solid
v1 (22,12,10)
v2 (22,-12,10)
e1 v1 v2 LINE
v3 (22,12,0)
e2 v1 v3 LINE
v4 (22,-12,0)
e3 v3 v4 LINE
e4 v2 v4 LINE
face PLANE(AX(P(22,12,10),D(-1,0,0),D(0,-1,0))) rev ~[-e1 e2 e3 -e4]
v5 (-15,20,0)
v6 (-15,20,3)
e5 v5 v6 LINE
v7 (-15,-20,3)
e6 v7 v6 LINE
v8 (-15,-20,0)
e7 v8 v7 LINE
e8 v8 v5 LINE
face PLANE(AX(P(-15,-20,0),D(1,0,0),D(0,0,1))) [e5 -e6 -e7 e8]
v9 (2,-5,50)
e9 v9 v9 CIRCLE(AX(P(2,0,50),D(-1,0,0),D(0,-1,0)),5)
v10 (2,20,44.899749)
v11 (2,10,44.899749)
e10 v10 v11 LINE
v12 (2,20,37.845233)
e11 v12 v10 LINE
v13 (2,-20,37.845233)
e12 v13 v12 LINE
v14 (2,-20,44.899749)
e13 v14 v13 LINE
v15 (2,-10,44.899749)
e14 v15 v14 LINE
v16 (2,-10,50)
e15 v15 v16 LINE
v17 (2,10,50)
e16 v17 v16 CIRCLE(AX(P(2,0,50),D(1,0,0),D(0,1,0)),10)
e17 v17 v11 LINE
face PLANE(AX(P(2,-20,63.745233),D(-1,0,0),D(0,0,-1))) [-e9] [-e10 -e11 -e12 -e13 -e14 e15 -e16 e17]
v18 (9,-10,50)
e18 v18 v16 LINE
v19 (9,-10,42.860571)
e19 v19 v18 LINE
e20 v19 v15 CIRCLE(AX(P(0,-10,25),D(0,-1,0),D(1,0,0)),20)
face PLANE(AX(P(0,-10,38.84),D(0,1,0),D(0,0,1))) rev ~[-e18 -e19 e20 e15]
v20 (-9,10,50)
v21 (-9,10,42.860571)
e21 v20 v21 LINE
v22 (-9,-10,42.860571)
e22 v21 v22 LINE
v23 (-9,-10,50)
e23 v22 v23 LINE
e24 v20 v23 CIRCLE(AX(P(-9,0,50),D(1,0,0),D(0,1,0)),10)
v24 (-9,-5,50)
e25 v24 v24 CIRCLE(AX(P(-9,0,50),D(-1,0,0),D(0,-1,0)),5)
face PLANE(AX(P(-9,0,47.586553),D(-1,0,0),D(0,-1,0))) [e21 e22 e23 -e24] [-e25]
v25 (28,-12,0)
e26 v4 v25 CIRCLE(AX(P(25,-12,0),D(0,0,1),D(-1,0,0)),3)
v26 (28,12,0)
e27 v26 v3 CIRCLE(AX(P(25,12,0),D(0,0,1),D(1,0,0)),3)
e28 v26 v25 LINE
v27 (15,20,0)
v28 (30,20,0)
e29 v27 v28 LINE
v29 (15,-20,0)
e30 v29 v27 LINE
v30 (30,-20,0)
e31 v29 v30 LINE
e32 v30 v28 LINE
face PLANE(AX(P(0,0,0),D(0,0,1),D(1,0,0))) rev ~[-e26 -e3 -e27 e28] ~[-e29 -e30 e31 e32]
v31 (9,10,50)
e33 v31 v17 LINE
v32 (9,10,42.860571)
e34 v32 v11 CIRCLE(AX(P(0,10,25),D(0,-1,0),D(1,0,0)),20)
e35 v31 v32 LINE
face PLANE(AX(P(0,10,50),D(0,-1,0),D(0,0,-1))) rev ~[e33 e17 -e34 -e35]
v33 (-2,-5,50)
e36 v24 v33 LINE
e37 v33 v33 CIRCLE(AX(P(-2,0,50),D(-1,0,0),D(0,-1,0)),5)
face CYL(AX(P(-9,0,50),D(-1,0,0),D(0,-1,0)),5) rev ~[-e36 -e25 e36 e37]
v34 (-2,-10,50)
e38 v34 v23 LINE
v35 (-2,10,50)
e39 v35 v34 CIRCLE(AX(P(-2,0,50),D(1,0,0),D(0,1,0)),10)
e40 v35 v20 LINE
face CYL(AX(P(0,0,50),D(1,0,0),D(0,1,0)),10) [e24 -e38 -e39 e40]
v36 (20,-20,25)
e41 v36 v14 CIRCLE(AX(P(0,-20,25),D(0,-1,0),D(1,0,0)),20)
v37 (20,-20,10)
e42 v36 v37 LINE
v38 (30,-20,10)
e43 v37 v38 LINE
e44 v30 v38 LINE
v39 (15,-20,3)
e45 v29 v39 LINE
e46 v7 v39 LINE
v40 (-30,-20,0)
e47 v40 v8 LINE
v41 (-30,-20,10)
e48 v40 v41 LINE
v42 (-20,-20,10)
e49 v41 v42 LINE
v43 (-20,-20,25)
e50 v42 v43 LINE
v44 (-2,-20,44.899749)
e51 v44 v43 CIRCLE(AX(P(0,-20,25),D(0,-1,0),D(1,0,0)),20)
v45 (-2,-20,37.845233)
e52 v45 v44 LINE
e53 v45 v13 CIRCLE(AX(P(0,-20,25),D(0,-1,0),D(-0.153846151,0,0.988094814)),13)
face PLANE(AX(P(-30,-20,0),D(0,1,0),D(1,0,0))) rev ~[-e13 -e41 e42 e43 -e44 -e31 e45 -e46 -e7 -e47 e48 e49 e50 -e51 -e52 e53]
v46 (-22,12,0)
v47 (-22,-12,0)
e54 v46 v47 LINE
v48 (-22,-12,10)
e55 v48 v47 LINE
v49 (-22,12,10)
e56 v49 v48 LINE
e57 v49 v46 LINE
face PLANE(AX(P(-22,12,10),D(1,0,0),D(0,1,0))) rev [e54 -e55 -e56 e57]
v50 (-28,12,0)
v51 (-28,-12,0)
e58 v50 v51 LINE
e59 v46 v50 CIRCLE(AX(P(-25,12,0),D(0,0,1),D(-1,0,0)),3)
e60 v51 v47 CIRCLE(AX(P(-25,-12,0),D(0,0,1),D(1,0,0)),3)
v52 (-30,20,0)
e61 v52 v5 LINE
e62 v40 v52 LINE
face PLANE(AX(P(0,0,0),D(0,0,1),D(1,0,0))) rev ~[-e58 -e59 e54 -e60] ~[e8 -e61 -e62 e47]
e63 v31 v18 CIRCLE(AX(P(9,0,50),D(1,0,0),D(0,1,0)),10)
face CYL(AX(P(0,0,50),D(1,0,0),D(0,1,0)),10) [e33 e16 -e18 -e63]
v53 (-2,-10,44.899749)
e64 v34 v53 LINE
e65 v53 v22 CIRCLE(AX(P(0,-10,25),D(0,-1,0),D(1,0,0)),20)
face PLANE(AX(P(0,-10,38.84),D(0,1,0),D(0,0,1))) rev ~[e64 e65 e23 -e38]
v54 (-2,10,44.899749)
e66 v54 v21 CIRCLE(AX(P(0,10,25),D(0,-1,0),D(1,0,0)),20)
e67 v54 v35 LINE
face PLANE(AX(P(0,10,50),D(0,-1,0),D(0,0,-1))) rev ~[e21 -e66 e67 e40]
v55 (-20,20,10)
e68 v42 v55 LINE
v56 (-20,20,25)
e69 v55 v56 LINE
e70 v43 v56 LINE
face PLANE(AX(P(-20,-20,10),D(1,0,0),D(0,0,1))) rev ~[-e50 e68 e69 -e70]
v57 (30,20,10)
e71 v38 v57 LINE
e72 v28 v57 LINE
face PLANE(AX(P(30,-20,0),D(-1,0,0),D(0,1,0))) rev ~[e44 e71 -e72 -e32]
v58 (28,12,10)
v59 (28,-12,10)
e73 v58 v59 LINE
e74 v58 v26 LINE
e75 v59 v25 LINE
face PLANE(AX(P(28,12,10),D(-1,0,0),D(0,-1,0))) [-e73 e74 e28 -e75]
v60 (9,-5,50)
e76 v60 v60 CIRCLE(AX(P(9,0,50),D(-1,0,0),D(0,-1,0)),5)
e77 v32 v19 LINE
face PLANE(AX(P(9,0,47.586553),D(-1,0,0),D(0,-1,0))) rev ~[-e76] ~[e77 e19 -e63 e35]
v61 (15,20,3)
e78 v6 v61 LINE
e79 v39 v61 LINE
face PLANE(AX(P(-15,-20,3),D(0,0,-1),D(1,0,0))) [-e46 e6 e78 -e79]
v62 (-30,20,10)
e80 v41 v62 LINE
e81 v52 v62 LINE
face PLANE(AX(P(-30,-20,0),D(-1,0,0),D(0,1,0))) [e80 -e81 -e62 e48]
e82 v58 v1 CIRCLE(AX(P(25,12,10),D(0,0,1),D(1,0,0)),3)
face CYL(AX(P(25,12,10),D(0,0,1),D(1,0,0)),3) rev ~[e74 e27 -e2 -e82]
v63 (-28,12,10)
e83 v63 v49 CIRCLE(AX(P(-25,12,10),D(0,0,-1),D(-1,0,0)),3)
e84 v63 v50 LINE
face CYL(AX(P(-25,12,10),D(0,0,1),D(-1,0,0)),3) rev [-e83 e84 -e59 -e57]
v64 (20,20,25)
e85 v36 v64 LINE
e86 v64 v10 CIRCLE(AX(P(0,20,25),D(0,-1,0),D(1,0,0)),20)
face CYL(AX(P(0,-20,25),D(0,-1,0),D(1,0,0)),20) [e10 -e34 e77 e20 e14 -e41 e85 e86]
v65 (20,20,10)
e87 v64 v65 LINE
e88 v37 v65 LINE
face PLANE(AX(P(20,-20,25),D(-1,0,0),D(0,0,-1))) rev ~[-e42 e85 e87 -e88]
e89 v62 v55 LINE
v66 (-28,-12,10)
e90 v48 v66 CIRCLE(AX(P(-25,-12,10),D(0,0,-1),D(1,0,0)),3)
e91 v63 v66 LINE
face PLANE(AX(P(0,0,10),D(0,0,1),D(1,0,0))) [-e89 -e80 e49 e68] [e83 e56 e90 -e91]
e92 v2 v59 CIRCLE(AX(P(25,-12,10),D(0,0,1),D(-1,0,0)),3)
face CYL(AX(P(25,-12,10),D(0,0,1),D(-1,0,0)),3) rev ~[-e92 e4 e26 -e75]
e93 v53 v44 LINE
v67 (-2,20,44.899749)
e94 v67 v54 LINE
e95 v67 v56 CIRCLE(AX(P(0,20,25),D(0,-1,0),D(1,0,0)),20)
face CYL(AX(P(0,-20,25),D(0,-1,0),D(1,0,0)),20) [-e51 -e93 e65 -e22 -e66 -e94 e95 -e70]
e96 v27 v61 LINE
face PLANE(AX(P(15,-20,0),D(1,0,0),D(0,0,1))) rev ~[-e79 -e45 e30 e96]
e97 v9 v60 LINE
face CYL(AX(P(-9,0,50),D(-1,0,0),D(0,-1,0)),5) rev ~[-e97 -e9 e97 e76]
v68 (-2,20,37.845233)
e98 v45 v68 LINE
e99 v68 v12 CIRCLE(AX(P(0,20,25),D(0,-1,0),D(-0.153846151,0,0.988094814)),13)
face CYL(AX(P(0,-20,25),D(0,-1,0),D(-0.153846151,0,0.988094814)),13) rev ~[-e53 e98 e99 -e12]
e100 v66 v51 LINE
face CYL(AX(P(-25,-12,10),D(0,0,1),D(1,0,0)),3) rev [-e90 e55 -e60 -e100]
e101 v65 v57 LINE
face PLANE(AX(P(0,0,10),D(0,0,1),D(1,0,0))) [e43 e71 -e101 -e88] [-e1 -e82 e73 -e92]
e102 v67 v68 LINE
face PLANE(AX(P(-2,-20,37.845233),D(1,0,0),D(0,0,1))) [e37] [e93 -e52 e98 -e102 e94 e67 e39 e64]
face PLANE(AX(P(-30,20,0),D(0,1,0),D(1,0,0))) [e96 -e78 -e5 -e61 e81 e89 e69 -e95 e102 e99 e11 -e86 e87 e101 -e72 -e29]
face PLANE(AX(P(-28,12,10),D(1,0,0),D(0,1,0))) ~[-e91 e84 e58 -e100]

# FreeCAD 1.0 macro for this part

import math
import FreeCAD as App
import Part
import Sketcher
from FreeCAD import Vector

doc = App.newDocument("Part")
body = doc.addObject("PartDesign::Body", "Body")

sketch1 = body.newObject("Sketcher::SketchObject", "Sketch")
sketch1.AttachmentSupport = (doc.getObject("XY_Plane"), [""])
sketch1.MapMode = "FlatFace"
sketch1.addGeometry([
    Part.LineSegment(Vector(-30, 20, 0), Vector(-30, -20, 0)),
    Part.LineSegment(Vector(-30, -20, 0), Vector(30, -20, 0)),
    Part.LineSegment(Vector(30, -20, 0), Vector(30, 20, 0)),
    Part.LineSegment(Vector(30, 20, 0), Vector(-30, 20, 0)),
], False)
sketch1.addConstraint([
    Sketcher.Constraint("Coincident", 0, 2, 1, 1),
    Sketcher.Constraint("Coincident", 1, 2, 2, 1),
    Sketcher.Constraint("Coincident", 2, 2, 3, 1),
    Sketcher.Constraint("Coincident", 3, 2, 0, 1),
    Sketcher.Constraint("Vertical", 0),
    Sketcher.Constraint("Horizontal", 1),
    Sketcher.Constraint("Vertical", 2),
    Sketcher.Constraint("Horizontal", 3),
    Sketcher.Constraint("Symmetric", 0, 2, 2, 2, -1, 1),
    Sketcher.Constraint("DistanceX", 1, 1, 1, 2, 60.0),
    Sketcher.Constraint("DistanceY", 0, 2, 0, 1, 40.0),
])
pad1 = body.newObject("PartDesign::Pad", "Pad")
pad1.Profile = sketch1
pad1.Length = 10

sketch2 = body.newObject("Sketcher::SketchObject", "Sketch001")
sketch2.AttachmentSupport = (doc.getObject("XZ_Plane"), [""])
sketch2.MapMode = "FlatFace"
sketch2.AttachmentOffset = App.Placement(Vector(0, 0, 20), App.Rotation())
sketch2.addGeometry([
    Part.LineSegment(Vector(-20, 25, 0), Vector(-20, 10, 0)),
    Part.LineSegment(Vector(-20, 10, 0), Vector(20, 10, 0)),
    Part.LineSegment(Vector(20, 10, 0), Vector(20, 25, 0)),
    Part.ArcOfCircle(Part.Circle(Vector(0, 25, 0), Vector(0, 0, 1), 20), math.radians(0), math.radians(180)),
], False)
sketch2.addConstraint([
    Sketcher.Constraint("Coincident", 0, 2, 1, 1),
    Sketcher.Constraint("Coincident", 1, 2, 2, 1),
    Sketcher.Constraint("Tangent", 2, 2, 3, 1),
    Sketcher.Constraint("Tangent", 3, 2, 0, 1),
    Sketcher.Constraint("Vertical", 0),
    Sketcher.Constraint("Horizontal", 1),
    Sketcher.Constraint("Vertical", 2),
    Sketcher.Constraint("PointOnObject", 3, 3, -2),
    Sketcher.Constraint("Radius", 3, 20.0),
    Sketcher.Constraint("DistanceY", 0, 2, 0, 1, 15.0),
    Sketcher.Constraint("DistanceY", -1, 1, 3, 3, 25.0),
])
pad2 = body.newObject("PartDesign::Pad", "Pad001")
pad2.Profile = sketch2
pad2.Length = 40
pad2.Reversed = True

sketch3 = body.newObject("Sketcher::SketchObject", "Sketch002")
sketch3.AttachmentSupport = (doc.getObject("XZ_Plane"), [""])
sketch3.MapMode = "FlatFace"
sketch3.AttachmentOffset = App.Placement(Vector(0, 0, 20), App.Rotation())
sketch3.addGeometry([
    Part.LineSegment(Vector(-15, 3, 0), Vector(-15, 0, 0)),
    Part.LineSegment(Vector(-15, 0, 0), Vector(15, 0, 0)),
    Part.LineSegment(Vector(15, 0, 0), Vector(15, 3, 0)),
    Part.LineSegment(Vector(15, 3, 0), Vector(-15, 3, 0)),
], False)
sketch3.addConstraint([
    Sketcher.Constraint("Coincident", 0, 2, 1, 1),
    Sketcher.Constraint("Coincident", 1, 2, 2, 1),
    Sketcher.Constraint("Coincident", 2, 2, 3, 1),
    Sketcher.Constraint("Coincident", 3, 2, 0, 1),
    Sketcher.Constraint("Vertical", 0),
    Sketcher.Constraint("Horizontal", 1),
    Sketcher.Constraint("Vertical", 2),
    Sketcher.Constraint("Horizontal", 3),
    Sketcher.Constraint("Symmetric", 0, 2, 1, 2, -1, 1),
    Sketcher.Constraint("DistanceX", 1, 1, 1, 2, 30.0),
    Sketcher.Constraint("DistanceY", 0, 2, 0, 1, 3.0),
])
pocket1 = body.newObject("PartDesign::Pocket", "Pocket")
pocket1.Profile = sketch3
pocket1.Length = 40

sketch4 = body.newObject("Sketcher::SketchObject", "Sketch003")
sketch4.AttachmentSupport = (doc.getObject("YZ_Plane"), [""])
sketch4.MapMode = "FlatFace"
sketch4.addGeometry([
    Part.LineSegment(Vector(-10, 50, 0), Vector(-10, 39, 0)),
    Part.LineSegment(Vector(-10, 39, 0), Vector(10, 39, 0)),
    Part.LineSegment(Vector(10, 39, 0), Vector(10, 50, 0)),
    Part.ArcOfCircle(Part.Circle(Vector(0, 50, 0), Vector(0, 0, 1), 10), math.radians(0), math.radians(180)),
], False)
sketch4.addConstraint([
    Sketcher.Constraint("Coincident", 0, 2, 1, 1),
    Sketcher.Constraint("Coincident", 1, 2, 2, 1),
    Sketcher.Constraint("Tangent", 2, 2, 3, 1),
    Sketcher.Constraint("Tangent", 3, 2, 0, 1),
    Sketcher.Constraint("Vertical", 0),
    Sketcher.Constraint("Horizontal", 1),
    Sketcher.Constraint("Vertical", 2),
    Sketcher.Constraint("PointOnObject", 3, 3, -2),
    Sketcher.Constraint("Radius", 3, 10.0),
    Sketcher.Constraint("DistanceY", -1, 1, 3, 3, 50.0),
    Sketcher.Constraint("DistanceY", 0, 2, 0, 1, 11.16),
])
pad3 = body.newObject("PartDesign::Pad", "Pad002")
pad3.Profile = sketch4
pad3.Length = 18
pad3.Midplane = True

sketch5 = body.newObject("Sketcher::SketchObject", "Sketch004")
sketch5.AttachmentSupport = (doc.getObject("YZ_Plane"), [""])
sketch5.MapMode = "FlatFace"
sketch5.AttachmentOffset = App.Placement(Vector(0, 0, -9), App.Rotation())
sketch5.addGeometry(Part.Circle(Vector(0, 50, 0), Vector(0, 0, 1), 5), False)
sketch5.addConstraint([
    Sketcher.Constraint("PointOnObject", 0, 3, -2),
    Sketcher.Constraint("Diameter", 0, 10.0),
    Sketcher.Constraint("DistanceY", -1, 1, 0, 3, 50.0),
])
pocket2 = body.newObject("PartDesign::Pocket", "Pocket001")
pocket2.Profile = sketch5
pocket2.Type = "ThroughAll"
pocket2.Reversed = True

sketch6 = body.newObject("Sketcher::SketchObject", "Sketch005")
sketch6.AttachmentSupport = (doc.getObject("XY_Plane"), [""])
sketch6.MapMode = "FlatFace"
sketch6.AttachmentOffset = App.Placement(Vector(0, 0, 10), App.Rotation())
sketch6.addGeometry([
    Part.ArcOfCircle(Part.Circle(Vector(25, 12, 0), Vector(0, 0, 1), 3), math.radians(0), math.radians(180)),
    Part.LineSegment(Vector(22, 12, 0), Vector(22, -12, 0)),
    Part.ArcOfCircle(Part.Circle(Vector(25, -12, 0), Vector(0, 0, 1), 3), math.radians(180), math.radians(360)),
    Part.LineSegment(Vector(28, -12, 0), Vector(28, 12, 0)),
], False)
sketch6.addConstraint([
    Sketcher.Constraint("Tangent", 0, 2, 1, 1),
    Sketcher.Constraint("Tangent", 1, 2, 2, 1),
    Sketcher.Constraint("Tangent", 2, 2, 3, 1),
    Sketcher.Constraint("Tangent", 3, 2, 0, 1),
    Sketcher.Constraint("Vertical", 1),
    Sketcher.Constraint("Vertical", 3),
    Sketcher.Constraint("Radius", 0, 3.0),
    Sketcher.Constraint("DistanceY", 1, 2, 1, 1, 24.0),
    Sketcher.Constraint("DistanceX", -1, 1, 0, 3, 25.0),
    Sketcher.Constraint("DistanceY", -1, 1, 0, 3, 12.0),
])
pocket3 = body.newObject("PartDesign::Pocket", "Pocket002")
pocket3.Profile = sketch6
pocket3.Type = "ThroughAll"
doc.recompute()

mirrored = body.newObject("PartDesign::Mirrored", "Mirrored")
mirrored.Originals = [pocket3]
mirrored.MirrorPlane = (doc.getObject("YZ_Plane"), [""])
body.Tip = mirrored

sketch7 = body.newObject("Sketcher::SketchObject", "Sketch006")
sketch7.AttachmentSupport = (doc.getObject("XZ_Plane"), [""])
sketch7.MapMode = "FlatFace"
sketch7.AttachmentOffset = App.Placement(Vector(0, 0, 20), App.Rotation())
sketch7.addGeometry([
    Part.ArcOfCircle(Part.Circle(Vector(0, 25, 0), Vector(0, 0, 1), 13), math.radians(99), math.radians(441)),
    Part.LineSegment(Vector(2, 37.8, 0), Vector(2, 63.7, 0)),
    Part.LineSegment(Vector(2, 63.7, 0), Vector(-2, 63.7, 0)),
    Part.LineSegment(Vector(-2, 63.7, 0), Vector(-2, 37.8, 0)),
], False)
sketch7.addConstraint([
    Sketcher.Constraint("Coincident", 0, 2, 1, 1),
    Sketcher.Constraint("Coincident", 1, 2, 2, 1),
    Sketcher.Constraint("Coincident", 2, 2, 3, 1),
    Sketcher.Constraint("Coincident", 3, 2, 0, 1),
    Sketcher.Constraint("Vertical", 1),
    Sketcher.Constraint("Horizontal", 2),
    Sketcher.Constraint("Vertical", 3),
    Sketcher.Constraint("Symmetric", 0, 2, 3, 2, -2),
    Sketcher.Constraint("Radius", 0, 13.0),
    Sketcher.Constraint("DistanceX", 2, 2, 2, 1, 4.0),
    Sketcher.Constraint("DistanceY", 1, 1, 1, 2, 25.9),
    Sketcher.Constraint("DistanceY", -1, 1, 0, 3, 25.0),
])
pocket4 = body.newObject("PartDesign::Pocket", "Pocket003")
pocket4.Profile = sketch7
pocket4.Type = "ThroughAll"

doc.recompute()
